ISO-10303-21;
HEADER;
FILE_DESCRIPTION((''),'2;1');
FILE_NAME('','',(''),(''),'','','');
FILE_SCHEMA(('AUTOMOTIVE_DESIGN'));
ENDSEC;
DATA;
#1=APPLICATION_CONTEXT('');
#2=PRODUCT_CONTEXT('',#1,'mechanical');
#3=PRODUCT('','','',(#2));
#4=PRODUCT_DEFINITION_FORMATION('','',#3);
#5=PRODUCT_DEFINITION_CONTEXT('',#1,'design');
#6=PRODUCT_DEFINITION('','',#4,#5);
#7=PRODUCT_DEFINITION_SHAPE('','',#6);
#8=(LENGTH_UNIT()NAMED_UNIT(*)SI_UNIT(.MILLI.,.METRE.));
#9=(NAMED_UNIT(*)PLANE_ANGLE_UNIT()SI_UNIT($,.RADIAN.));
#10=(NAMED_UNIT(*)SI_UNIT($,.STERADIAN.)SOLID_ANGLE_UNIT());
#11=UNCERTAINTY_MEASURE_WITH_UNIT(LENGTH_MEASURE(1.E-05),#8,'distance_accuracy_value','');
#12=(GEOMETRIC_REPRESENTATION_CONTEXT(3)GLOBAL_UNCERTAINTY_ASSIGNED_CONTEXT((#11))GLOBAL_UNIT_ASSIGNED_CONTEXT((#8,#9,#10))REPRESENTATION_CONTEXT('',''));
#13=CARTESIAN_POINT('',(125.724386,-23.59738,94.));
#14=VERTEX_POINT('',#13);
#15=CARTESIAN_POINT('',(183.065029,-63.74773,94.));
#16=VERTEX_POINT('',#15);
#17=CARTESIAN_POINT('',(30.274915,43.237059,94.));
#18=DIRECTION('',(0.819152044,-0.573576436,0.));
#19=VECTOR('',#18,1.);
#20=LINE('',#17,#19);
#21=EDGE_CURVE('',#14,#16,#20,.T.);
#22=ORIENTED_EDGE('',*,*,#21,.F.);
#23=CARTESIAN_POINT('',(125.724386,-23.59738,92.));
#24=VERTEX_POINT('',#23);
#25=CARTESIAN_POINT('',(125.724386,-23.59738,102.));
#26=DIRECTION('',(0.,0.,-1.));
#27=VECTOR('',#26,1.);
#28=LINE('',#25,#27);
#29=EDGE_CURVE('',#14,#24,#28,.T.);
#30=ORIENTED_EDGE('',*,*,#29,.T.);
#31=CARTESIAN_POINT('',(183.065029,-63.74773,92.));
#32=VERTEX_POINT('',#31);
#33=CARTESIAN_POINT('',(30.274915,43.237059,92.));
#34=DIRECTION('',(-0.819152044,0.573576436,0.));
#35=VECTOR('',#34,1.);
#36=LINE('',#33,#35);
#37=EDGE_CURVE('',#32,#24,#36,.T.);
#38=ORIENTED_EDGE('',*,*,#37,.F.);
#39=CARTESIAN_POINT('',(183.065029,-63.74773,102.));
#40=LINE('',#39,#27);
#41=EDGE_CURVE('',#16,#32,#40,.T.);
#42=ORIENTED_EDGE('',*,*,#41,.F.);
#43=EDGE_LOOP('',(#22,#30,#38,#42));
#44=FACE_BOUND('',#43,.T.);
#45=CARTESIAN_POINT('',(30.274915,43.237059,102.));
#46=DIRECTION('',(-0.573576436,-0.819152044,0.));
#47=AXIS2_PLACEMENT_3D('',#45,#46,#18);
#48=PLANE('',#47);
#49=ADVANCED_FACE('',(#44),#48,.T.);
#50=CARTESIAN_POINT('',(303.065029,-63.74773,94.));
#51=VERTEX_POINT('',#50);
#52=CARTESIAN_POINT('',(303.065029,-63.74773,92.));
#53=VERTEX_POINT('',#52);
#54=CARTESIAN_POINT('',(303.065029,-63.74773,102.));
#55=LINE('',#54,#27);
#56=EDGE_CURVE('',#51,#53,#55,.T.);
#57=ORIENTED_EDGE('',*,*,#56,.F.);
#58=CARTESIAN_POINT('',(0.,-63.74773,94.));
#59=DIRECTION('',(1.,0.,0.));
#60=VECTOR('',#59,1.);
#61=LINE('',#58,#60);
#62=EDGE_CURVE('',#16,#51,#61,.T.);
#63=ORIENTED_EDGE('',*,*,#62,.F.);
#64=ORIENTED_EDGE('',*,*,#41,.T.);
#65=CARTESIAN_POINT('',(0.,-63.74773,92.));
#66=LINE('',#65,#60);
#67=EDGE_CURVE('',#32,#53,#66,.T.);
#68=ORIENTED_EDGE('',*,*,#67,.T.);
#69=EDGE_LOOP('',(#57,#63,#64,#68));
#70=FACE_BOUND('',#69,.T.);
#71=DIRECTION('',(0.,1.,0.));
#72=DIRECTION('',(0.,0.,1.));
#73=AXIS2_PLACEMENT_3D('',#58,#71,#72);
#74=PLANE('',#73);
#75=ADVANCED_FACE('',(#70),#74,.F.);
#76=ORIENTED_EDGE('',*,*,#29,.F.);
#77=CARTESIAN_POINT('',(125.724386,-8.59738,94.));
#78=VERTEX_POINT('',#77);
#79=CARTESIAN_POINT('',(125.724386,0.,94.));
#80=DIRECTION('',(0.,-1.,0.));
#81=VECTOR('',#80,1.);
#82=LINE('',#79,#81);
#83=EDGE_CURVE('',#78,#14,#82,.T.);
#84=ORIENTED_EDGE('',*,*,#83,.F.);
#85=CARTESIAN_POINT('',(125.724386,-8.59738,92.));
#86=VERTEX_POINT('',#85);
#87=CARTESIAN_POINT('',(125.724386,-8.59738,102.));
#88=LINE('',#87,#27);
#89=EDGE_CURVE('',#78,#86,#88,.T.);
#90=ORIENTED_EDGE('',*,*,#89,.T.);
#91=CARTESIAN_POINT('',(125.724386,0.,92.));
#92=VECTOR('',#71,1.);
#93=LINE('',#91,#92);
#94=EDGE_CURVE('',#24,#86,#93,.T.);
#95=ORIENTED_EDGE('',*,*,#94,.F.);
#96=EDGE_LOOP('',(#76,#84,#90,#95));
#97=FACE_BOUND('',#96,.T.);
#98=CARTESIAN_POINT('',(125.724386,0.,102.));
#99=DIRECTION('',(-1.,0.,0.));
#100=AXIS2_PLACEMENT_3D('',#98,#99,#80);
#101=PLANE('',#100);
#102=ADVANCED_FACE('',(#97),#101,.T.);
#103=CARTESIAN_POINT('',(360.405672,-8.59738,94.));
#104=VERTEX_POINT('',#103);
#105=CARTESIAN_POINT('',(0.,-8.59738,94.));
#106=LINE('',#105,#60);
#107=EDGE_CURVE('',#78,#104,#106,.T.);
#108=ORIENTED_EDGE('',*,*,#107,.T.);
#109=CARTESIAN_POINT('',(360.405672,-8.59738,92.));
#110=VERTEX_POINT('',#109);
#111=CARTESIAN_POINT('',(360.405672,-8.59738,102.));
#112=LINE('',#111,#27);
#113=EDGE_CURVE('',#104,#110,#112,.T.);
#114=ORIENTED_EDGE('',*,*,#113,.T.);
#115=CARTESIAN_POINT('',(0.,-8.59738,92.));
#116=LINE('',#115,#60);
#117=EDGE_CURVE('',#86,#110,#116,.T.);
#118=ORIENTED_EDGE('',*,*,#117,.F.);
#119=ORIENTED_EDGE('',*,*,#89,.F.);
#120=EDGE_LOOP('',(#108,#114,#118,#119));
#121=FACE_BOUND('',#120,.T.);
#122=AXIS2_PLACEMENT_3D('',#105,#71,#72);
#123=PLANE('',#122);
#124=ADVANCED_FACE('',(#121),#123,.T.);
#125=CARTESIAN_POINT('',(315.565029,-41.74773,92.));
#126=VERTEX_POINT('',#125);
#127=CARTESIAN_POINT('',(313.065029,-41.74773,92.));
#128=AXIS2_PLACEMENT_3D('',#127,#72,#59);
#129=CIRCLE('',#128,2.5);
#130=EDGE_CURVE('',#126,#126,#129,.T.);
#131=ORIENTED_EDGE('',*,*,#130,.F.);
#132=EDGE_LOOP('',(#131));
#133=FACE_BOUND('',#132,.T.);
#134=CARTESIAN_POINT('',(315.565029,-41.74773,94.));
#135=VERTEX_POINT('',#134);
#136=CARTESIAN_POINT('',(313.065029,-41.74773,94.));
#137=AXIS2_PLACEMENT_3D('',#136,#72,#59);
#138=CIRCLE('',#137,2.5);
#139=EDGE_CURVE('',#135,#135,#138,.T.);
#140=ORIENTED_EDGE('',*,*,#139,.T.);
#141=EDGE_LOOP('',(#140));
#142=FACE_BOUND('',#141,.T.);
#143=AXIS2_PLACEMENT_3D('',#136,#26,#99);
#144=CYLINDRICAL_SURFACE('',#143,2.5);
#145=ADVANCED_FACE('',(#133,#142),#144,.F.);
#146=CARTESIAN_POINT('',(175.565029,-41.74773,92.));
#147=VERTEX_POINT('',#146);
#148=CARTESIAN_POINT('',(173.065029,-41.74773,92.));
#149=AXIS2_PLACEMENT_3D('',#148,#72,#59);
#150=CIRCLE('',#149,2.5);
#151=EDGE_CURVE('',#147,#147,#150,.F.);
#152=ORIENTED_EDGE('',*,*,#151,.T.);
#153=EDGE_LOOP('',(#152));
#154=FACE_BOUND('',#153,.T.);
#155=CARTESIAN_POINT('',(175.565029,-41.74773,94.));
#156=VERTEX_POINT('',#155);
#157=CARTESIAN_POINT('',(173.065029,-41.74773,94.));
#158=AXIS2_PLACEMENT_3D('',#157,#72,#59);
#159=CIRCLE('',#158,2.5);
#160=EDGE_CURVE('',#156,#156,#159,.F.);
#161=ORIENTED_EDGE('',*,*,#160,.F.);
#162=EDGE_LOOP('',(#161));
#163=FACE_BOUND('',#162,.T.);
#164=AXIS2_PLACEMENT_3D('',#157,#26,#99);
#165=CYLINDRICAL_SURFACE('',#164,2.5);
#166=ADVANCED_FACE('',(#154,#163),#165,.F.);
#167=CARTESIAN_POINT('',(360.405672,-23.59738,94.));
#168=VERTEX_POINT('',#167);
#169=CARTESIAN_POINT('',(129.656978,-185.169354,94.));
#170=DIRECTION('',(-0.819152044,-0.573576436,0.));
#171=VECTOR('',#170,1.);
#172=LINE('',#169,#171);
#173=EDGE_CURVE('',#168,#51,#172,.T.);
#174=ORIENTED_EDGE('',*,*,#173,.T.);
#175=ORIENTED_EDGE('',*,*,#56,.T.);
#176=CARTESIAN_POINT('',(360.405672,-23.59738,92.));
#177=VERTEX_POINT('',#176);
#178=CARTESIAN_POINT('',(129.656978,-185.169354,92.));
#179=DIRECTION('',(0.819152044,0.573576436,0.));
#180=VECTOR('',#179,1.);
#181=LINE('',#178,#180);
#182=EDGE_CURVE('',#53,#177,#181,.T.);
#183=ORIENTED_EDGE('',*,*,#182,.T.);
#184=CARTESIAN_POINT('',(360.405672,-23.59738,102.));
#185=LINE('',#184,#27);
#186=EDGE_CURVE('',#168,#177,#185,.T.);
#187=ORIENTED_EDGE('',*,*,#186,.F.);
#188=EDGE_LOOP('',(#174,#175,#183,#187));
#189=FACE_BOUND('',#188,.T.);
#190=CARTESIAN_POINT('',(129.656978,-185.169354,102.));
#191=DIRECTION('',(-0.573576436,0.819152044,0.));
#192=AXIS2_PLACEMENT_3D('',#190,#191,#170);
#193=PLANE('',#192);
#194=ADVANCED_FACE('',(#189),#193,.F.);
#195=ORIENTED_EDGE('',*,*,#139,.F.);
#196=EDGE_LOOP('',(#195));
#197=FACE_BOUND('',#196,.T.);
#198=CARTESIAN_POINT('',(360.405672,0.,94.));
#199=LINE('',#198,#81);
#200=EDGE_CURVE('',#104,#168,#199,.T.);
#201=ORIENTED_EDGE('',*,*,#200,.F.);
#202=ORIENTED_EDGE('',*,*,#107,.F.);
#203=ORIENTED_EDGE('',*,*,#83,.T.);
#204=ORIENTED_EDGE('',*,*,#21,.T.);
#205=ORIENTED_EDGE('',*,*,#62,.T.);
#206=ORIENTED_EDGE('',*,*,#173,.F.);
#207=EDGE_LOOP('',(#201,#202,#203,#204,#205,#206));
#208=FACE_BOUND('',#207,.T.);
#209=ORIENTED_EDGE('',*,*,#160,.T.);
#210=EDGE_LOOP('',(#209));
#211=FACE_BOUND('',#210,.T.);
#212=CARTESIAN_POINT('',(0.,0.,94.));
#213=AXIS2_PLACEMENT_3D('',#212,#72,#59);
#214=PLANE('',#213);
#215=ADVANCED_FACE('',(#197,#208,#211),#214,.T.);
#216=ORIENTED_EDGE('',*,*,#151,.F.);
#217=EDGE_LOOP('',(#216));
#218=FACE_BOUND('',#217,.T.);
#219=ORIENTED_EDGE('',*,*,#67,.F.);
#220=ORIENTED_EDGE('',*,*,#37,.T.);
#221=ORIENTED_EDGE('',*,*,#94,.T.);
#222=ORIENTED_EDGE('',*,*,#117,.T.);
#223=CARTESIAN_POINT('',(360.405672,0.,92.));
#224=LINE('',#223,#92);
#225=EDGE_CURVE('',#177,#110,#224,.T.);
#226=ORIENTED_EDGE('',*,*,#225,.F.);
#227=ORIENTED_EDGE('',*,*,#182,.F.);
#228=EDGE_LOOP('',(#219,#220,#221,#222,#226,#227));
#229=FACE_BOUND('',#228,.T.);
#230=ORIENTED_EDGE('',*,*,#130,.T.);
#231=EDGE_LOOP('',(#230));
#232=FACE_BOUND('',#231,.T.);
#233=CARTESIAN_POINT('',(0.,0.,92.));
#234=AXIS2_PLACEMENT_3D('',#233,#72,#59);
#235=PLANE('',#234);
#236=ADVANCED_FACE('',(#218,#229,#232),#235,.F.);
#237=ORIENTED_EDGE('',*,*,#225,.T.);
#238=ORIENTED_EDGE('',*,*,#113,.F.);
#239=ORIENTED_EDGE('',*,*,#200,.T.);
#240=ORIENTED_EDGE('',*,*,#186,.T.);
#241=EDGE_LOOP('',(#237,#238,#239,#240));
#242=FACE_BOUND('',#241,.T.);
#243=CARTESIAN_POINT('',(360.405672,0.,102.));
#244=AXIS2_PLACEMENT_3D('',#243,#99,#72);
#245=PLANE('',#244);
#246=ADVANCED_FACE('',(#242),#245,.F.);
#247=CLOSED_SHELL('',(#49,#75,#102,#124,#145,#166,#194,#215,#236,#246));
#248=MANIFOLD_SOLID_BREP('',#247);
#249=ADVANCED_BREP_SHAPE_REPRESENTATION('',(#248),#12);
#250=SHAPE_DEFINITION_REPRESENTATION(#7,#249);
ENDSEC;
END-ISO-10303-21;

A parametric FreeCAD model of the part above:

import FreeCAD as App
import Part
import Sketcher

V = App.Vector
Q = App.Units.Quantity


def add_polygon(sketch, points):
    """Adds a closed chain of lines whose ends are joined by coincident constraints."""
    first, n = sketch.GeometryCount, len(points)
    for a, b in zip(points, points[1:] + points[:1]):
        sketch.addGeometry(Part.LineSegment(App.Vector(*a, 0), App.Vector(*b, 0)), False)
    for i in range(n):
        sketch.addConstraint(Sketcher.Constraint("Coincident", first + i, 2, first + (i + 1) % n, 1))

doc = App.newDocument("Part")
body = doc.addObject("PartDesign::Body", "Body")

# Sketch on XY plane
sketch1 = body.newObject("Sketcher::SketchObject", "Sketch")
sketch1.AttachmentSupport = (doc.getObject("XY_Plane"), [""])
sketch1.MapMode = "FlatFace"
sketch1.AttachmentOffset = App.Placement(V(0, 0, 92), App.Rotation())
add_polygon(sketch1, [(26.1, -8.6), (26.1, -23.6), (83.5, -63.7), (402.7, -63.7), (460, -23.6), (460, -8.6)])  # lines 0-5
sketch1.addGeometry(Part.Circle(V(173.1, -41.7, 0), V(0, 0, 1), 2.5), False)  # 6
sketch1.addGeometry(Part.Circle(V(313.1, -41.7, 0), V(0, 0, 1), 2.5), False)  # 7
sketch1.addConstraint([
    Sketcher.Constraint("Vertical", 0),
    Sketcher.Constraint("Horizontal", 2),
    Sketcher.Constraint("Vertical", 4),
    Sketcher.Constraint("Horizontal", 5),
    Sketcher.Constraint("Equal", 6, 7),
    Sketcher.Constraint("Horizontal", 6, 3, 7, 3),
    Sketcher.Constraint("Horizontal", 0, 2, 3, 2),
    Sketcher.Constraint("Equal", 1, 3),
    Sketcher.Constraint("Diameter", 6, 5.0),
    Sketcher.Constraint("DistanceY", 0, 2, 0, 1, 15.0),
    Sketcher.Constraint("Angle", 1, Q("-35 deg")),
    Sketcher.Constraint("Distance", 1, 70.0),
    Sketcher.Constraint("DistanceX", -1, 1, 3, 2, 460.0),
    Sketcher.Constraint("DistanceX", 6, 3, 7, 3, 140.0),
    Sketcher.Constraint("DistanceY", 1, 2, 6, 3, 22.0),
    Sketcher.Constraint("DistanceX", -1, 1, 1, 2, 83.4707),
    Sketcher.Constraint("DistanceX", -1, 1, 6, 3, 173.065029),
    Sketcher.Constraint("DistanceY", 6, 3, -1, 1, 41.74773),
])
pad1 = body.newObject("PartDesign::Pad", "Pad")
pad1.Profile = sketch1
pad1.Length = 2

# Sketch on XY plane
sketch2 = body.newObject("Sketcher::SketchObject", "Sketch001")
sketch2.AttachmentSupport = (doc.getObject("XY_Plane"), [""])
sketch2.MapMode = "FlatFace"
sketch2.AttachmentOffset = App.Placement(V(0, 0, 92), App.Rotation())
add_polygon(sketch2, [(360, -24), (360, -9), (460, -9), (460, -24), (403, -64), (303, -64)])  # lines 0-5
add_polygon(sketch2, [(126, -9), (126, -24), (183, -64), (83, -64), (26, -24), (26, -9)])  # lines 6-11
sketch2.addConstraint([
    Sketcher.Constraint("Vertical", 0),
    Sketcher.Constraint("Horizontal", 1),
    Sketcher.Constraint("Vertical", 2),
    Sketcher.Constraint("Horizontal", 4),
    Sketcher.Constraint("Vertical", 6),
    Sketcher.Constraint("Horizontal", 8),
    Sketcher.Constraint("Vertical", 10),
    Sketcher.Constraint("Horizontal", 11),
    Sketcher.Constraint("Parallel", 3, 5),
    Sketcher.Constraint("Parallel", 7, 9),
    Sketcher.Constraint("Horizontal", 2, 2, 5, 2),
    Sketcher.Constraint("Horizontal", 5, 2, 6, 2),
    Sketcher.Constraint("Horizontal", 4, 2, 7, 2),
    Sketcher.Constraint("Horizontal", 6, 2, 9, 2),
    Sketcher.Constraint("Horizontal", 1, 2, 10, 2),
    Sketcher.Constraint("Equal", 4, 8),
    Sketcher.Constraint("Equal", 5, 7),
    Sketcher.Constraint("DistanceY", 0, 1, 0, 2, 15.0),
    Sketcher.Constraint("Angle", 3, Q("-145 deg")),
    Sketcher.Constraint("Distance", 3, 70.0),
    Sketcher.Constraint("DistanceX", -1, 1, 1, 2, 460.0),
    Sketcher.Constraint("DistanceX", 7, 2, 4, 2, 120.0),
    Sketcher.Constraint("DistanceX", 1, 1, 1, 2, 99.594328),
    Sketcher.Constraint("DistanceY", 0, 2, -1, 1, 8.59738),
])
pocket1 = body.newObject("PartDesign::Pocket", "Pocket")
pocket1.Profile = sketch2
pocket1.Length = 10
pocket1.Reversed = True

doc.recompute()
